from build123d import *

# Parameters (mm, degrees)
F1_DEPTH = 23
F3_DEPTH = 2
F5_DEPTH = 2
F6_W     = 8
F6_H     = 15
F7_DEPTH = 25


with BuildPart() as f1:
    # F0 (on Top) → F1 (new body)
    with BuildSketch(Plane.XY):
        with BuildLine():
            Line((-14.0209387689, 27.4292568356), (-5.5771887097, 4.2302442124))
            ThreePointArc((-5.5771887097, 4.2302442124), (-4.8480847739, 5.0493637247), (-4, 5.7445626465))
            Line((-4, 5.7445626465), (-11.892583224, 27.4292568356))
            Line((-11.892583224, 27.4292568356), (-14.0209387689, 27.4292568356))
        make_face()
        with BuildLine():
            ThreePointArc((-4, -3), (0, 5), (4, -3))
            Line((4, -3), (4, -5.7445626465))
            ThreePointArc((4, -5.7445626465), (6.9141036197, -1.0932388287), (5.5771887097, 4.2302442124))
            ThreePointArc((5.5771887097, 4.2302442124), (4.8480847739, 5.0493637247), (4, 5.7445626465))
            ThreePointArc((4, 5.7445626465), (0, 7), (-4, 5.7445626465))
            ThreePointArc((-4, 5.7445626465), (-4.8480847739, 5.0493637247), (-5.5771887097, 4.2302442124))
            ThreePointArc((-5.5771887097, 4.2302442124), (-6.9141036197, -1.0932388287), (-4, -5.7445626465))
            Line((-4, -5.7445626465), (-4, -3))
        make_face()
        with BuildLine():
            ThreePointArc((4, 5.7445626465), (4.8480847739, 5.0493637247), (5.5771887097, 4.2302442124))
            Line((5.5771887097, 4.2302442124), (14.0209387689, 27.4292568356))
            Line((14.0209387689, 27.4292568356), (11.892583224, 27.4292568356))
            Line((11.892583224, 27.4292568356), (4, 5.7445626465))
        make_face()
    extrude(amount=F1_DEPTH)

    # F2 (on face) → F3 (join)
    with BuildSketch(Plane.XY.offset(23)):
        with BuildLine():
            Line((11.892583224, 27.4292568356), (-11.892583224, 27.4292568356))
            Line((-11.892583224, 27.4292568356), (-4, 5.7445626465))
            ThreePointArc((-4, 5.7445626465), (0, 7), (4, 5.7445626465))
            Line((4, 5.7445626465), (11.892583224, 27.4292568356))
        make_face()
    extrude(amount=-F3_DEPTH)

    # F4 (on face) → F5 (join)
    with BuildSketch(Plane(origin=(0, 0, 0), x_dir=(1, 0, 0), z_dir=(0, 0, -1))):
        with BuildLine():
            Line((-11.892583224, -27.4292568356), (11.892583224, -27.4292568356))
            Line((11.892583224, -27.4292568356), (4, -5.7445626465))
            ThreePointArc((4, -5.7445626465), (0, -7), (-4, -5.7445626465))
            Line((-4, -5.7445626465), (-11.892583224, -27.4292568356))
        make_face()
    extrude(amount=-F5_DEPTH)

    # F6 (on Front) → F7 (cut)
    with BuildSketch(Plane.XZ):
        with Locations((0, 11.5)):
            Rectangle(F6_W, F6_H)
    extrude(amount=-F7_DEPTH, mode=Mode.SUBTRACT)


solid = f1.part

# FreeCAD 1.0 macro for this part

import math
import FreeCAD as App
import Part
import Sketcher
from FreeCAD import Vector
Q = App.Units.Quantity

doc = App.newDocument("Part")
body = doc.addObject("PartDesign::Body", "Body")

sketch1 = body.newObject("Sketcher::SketchObject", "Sketch")
sketch1.AttachmentSupport = (doc.getObject("XY_Plane"), [""])
sketch1.MapMode = "FlatFace"
sketch1.addGeometry(Part.LineSegment(Vector(-14, 27.4, 0), Vector(-5.6, 4.2, 0)), False)
sketch1.addGeometry(Part.ArcOfCircle(Part.Circle(Vector(0, 0, 0), Vector(0, 0, 1), 7), math.radians(143), math.radians(235)), False)
sketch1.addGeometry(Part.LineSegment(Vector(-4, -5.7, 0), Vector(-4, -3, 0)), False)
sketch1.addGeometry(Part.ArcOfCircle(Part.Circle(Vector(0, 0, 0), Vector(0, 0, 1), 5), math.radians(-37), math.radians(217)), False)
sketch1.addGeometry(Part.LineSegment(Vector(4, -3, 0), Vector(4, -5.7, 0)), False)
sketch1.addGeometry(Part.ArcOfCircle(Part.Circle(Vector(0, 0, 0), Vector(0, 0, 1), 7), math.radians(-55), math.radians(37)), False)
sketch1.addGeometry(Part.LineSegment(Vector(5.6, 4.2, 0), Vector(14, 27.4, 0)), False)
sketch1.addGeometry(Part.LineSegment(Vector(14, 27.4, 0), Vector(11.9, 27.4, 0)), False)
sketch1.addGeometry(Part.LineSegment(Vector(11.9, 27.4, 0), Vector(4, 5.7, 0)), False)
sketch1.addGeometry(Part.ArcOfCircle(Part.Circle(Vector(0, 0, 0), Vector(0, 0, 1), 7), math.radians(55), math.radians(125)), False)
sketch1.addGeometry(Part.LineSegment(Vector(-4, 5.7, 0), Vector(-11.9, 27.4, 0)), False)
sketch1.addGeometry(Part.LineSegment(Vector(-11.9, 27.4, 0), Vector(-14, 27.4, 0)), False)
sketch1.addConstraint(Sketcher.Constraint("Coincident", 0, 2, 1, 1))
sketch1.addConstraint(Sketcher.Constraint("Coincident", 1, 2, 2, 1))
sketch1.addConstraint(Sketcher.Constraint("Coincident", 2, 2, 3, 2))
sketch1.addConstraint(Sketcher.Constraint("Coincident", 3, 1, 4, 1))
sketch1.addConstraint(Sketcher.Constraint("Coincident", 4, 2, 5, 1))
sketch1.addConstraint(Sketcher.Constraint("Coincident", 5, 2, 6, 1))
sketch1.addConstraint(Sketcher.Constraint("Coincident", 6, 2, 7, 1))
sketch1.addConstraint(Sketcher.Constraint("Coincident", 7, 2, 8, 1))
sketch1.addConstraint(Sketcher.Constraint("Coincident", 8, 2, 9, 1))
sketch1.addConstraint(Sketcher.Constraint("Coincident", 9, 2, 10, 1))
sketch1.addConstraint(Sketcher.Constraint("Coincident", 10, 2, 11, 1))
sketch1.addConstraint(Sketcher.Constraint("Coincident", 11, 2, 0, 1))
sketch1.addConstraint(Sketcher.Constraint("Vertical", 2))
sketch1.addConstraint(Sketcher.Constraint("Vertical", 4))
sketch1.addConstraint(Sketcher.Constraint("Horizontal", 7))
sketch1.addConstraint(Sketcher.Constraint("Horizontal", 11))
sketch1.addConstraint(Sketcher.Constraint("Coincident", 1, 3, -1, 1))
sketch1.addConstraint(Sketcher.Constraint("Coincident", 3, 3, -1, 1))
sketch1.addConstraint(Sketcher.Constraint("Coincident", 5, 3, -1, 1))
sketch1.addConstraint(Sketcher.Constraint("Coincident", 9, 3, -1, 1))
sketch1.addConstraint(Sketcher.Constraint("Equal", 1, 5))
sketch1.addConstraint(Sketcher.Constraint("Equal", 5, 9))
sketch1.addConstraint(Sketcher.Constraint("Symmetric", 7, 2, 10, 2, -2))
sketch1.addConstraint(Sketcher.Constraint("Parallel", 6, 8))
sketch1.addConstraint(Sketcher.Constraint("Parallel", 0, 10))
sketch1.addConstraint(Sketcher.Constraint("Horizontal", 2, 2, 3, 1))
sketch1.addConstraint(Sketcher.Constraint("Horizontal", 0, 2, 5, 2))
sketch1.addConstraint(Sketcher.Constraint("Horizontal", 8, 2, 9, 2))
sketch1.addConstraint(Sketcher.Constraint("Vertical", 4, 2, 8, 2))
sketch1.addConstraint(Sketcher.Constraint("Radius", 1, Q("7 mm")))
sketch1.addConstraint(Sketcher.Constraint("Radius", 3, Q("5 mm")))
sketch1.addConstraint(Sketcher.Constraint("Angle", 0, Q("-70 deg")))
sketch1.addConstraint(Sketcher.Constraint("DistanceX", 1, 2, -1, 1, Q("4 mm")))
sketch1.addConstraint(Sketcher.Constraint("Distance", 8, Q("23.07637 mm")))
sketch1.addConstraint(Sketcher.Constraint("DistanceX", 7, 2, 7, 1, Q("2.128356 mm")))
pad1 = body.newObject("PartDesign::Pad", "Pad")
pad1.Profile = sketch1
pad1.Length = 23

sketch2 = body.newObject("Sketcher::SketchObject", "Sketch001")
sketch2.AttachmentSupport = (doc.getObject("XY_Plane"), [""])
sketch2.MapMode = "FlatFace"
sketch2.AttachmentOffset = App.Placement(Vector(0, 0, 23), App.Rotation())
sketch2.addGeometry(Part.LineSegment(Vector(12, 27, 0), Vector(-12, 27, 0)), False)
sketch2.addGeometry(Part.LineSegment(Vector(-12, 27, 0), Vector(-4, 6, 0)), False)
sketch2.addGeometry(Part.ArcOfCircle(Part.Circle(Vector(0, 0, 0), Vector(0, 0, 1), 7), math.radians(55), math.radians(125)), False)
sketch2.addGeometry(Part.LineSegment(Vector(4, 6, 0), Vector(12, 27, 0)), False)
sketch2.addConstraint(Sketcher.Constraint("Coincident", 0, 2, 1, 1))
sketch2.addConstraint(Sketcher.Constraint("Coincident", 1, 2, 2, 2))
sketch2.addConstraint(Sketcher.Constraint("Coincident", 2, 1, 3, 1))
sketch2.addConstraint(Sketcher.Constraint("Coincident", 3, 2, 0, 1))
sketch2.addConstraint(Sketcher.Constraint("Horizontal", 0))
sketch2.addConstraint(Sketcher.Constraint("Coincident", 2, 3, -1, 1))
sketch2.addConstraint(Sketcher.Constraint("Horizontal", 1, 2, 2, 1))
sketch2.addConstraint(Sketcher.Constraint("Equal", 1, 3))
sketch2.addConstraint(Sketcher.Constraint("Radius", 2, Q("7 mm")))
sketch2.addConstraint(Sketcher.Constraint("Angle", 1, Q("-70 deg")))
sketch2.addConstraint(Sketcher.Constraint("DistanceX", 1, 2, -1, 1, Q("4 mm")))
sketch2.addConstraint(Sketcher.Constraint("Distance", 1, Q("23.07637 mm")))
pad2 = body.newObject("PartDesign::Pad", "Pad001")
pad2.Profile = sketch2
pad2.Length = 2
pad2.Reversed = True

sketch3 = body.newObject("Sketcher::SketchObject", "Sketch002")
sketch3.AttachmentSupport = (doc.getObject("XY_Plane"), [""])
sketch3.MapMode = "FlatFace"
sketch3.addGeometry(Part.LineSegment(Vector(-12, 27, 0), Vector(12, 27, 0)), False)
sketch3.addGeometry(Part.LineSegment(Vector(12, 27, 0), Vector(4, 6, 0)), False)
sketch3.addGeometry(Part.ArcOfCircle(Part.Circle(Vector(0, 0, 0), Vector(0, 0, 1), 7), math.radians(55), math.radians(125)), False)
sketch3.addGeometry(Part.LineSegment(Vector(-4, 6, 0), Vector(-12, 27, 0)), False)
sketch3.addConstraint(Sketcher.Constraint("Coincident", 0, 2, 1, 1))
sketch3.addConstraint(Sketcher.Constraint("Coincident", 1, 2, 2, 1))
sketch3.addConstraint(Sketcher.Constraint("Coincident", 2, 2, 3, 1))
sketch3.addConstraint(Sketcher.Constraint("Coincident", 3, 2, 0, 1))
sketch3.addConstraint(Sketcher.Constraint("Horizontal", 0))
sketch3.addConstraint(Sketcher.Constraint("Coincident", 2, 3, -1, 1))
sketch3.addConstraint(Sketcher.Constraint("Horizontal", 1, 2, 2, 2))
sketch3.addConstraint(Sketcher.Constraint("Equal", 1, 3))
sketch3.addConstraint(Sketcher.Constraint("Radius", 2, Q("7 mm")))
sketch3.addConstraint(Sketcher.Constraint("Angle", 1, Q("-110 deg")))
sketch3.addConstraint(Sketcher.Constraint("DistanceX", -1, 1, 1, 2, Q("4 mm")))
sketch3.addConstraint(Sketcher.Constraint("Distance", 1, Q("23.07637 mm")))
pad3 = body.newObject("PartDesign::Pad", "Pad002")
pad3.Profile = sketch3
pad3.Length = 2

sketch4 = body.newObject("Sketcher::SketchObject", "Sketch003")
sketch4.AttachmentSupport = (doc.getObject("XZ_Plane"), [""])
sketch4.MapMode = "FlatFace"
sketch4.addGeometry(Part.LineSegment(Vector(-4, 19, 0), Vector(-4, 4, 0)), False)
sketch4.addGeometry(Part.LineSegment(Vector(-4, 4, 0), Vector(4, 4, 0)), False)
sketch4.addGeometry(Part.LineSegment(Vector(4, 4, 0), Vector(4, 19, 0)), False)
sketch4.addGeometry(Part.LineSegment(Vector(4, 19, 0), Vector(-4, 19, 0)), False)
sketch4.addConstraint(Sketcher.Constraint("Coincident", 0, 2, 1, 1))
sketch4.addConstraint(Sketcher.Constraint("Coincident", 1, 2, 2, 1))
sketch4.addConstraint(Sketcher.Constraint("Coincident", 2, 2, 3, 1))
sketch4.addConstraint(Sketcher.Constraint("Coincident", 3, 2, 0, 1))
sketch4.addConstraint(Sketcher.Constraint("Vertical", 0))
sketch4.addConstraint(Sketcher.Constraint("Horizontal", 1))
sketch4.addConstraint(Sketcher.Constraint("Vertical", 2))
sketch4.addConstraint(Sketcher.Constraint("Horizontal", 3))
sketch4.addConstraint(Sketcher.Constraint("DistanceX", 1, 1, 1, 2, Q("8 mm")))
sketch4.addConstraint(Sketcher.Constraint("DistanceY", 0, 2, 0, 1, Q("15 mm")))
sketch4.addConstraint(Sketcher.Constraint("DistanceX", 0, 2, -1, 1, Q("4 mm")))
sketch4.addConstraint(Sketcher.Constraint("DistanceY", -1, 1, 0, 2, Q("4 mm")))
pocket1 = body.newObject("PartDesign::Pocket", "Pocket")
pocket1.Profile = sketch4
pocket1.Length = 25

doc.recompute()
